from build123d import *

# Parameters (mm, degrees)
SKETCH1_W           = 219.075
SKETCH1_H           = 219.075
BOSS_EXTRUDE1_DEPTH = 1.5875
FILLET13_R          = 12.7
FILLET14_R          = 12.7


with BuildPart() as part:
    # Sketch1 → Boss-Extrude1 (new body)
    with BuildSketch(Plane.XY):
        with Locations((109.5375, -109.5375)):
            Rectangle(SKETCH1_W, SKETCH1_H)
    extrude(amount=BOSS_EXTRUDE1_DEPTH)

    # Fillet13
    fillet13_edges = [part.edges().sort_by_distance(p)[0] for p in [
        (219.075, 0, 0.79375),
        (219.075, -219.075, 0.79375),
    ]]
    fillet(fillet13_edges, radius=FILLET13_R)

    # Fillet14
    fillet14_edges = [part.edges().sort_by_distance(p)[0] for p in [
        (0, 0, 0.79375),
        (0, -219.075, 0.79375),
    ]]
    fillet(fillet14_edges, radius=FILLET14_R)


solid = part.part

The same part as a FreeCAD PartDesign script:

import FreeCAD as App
import Part
import Sketcher
Q = App.Units.Quantity


def edges_at(feature, points):
    """Names of the edges that pass closest to the given points."""
    edges = feature.Shape.Edges
    near = lambda p: min(range(len(edges)), key=lambda i: edges[i].distToShape(Part.Vertex(*p))[0])
    return sorted({f"Edge{near(p) + 1}" for p in points})


def add_polygon(sketch, points):
    """Adds a closed chain of lines whose ends are joined by coincident constraints."""
    first, n = sketch.GeometryCount, len(points)
    for a, b in zip(points, points[1:] + points[:1]):
        sketch.addGeometry(Part.LineSegment(App.Vector(*a, 0), App.Vector(*b, 0)), False)
    for i in range(n):
        sketch.addConstraint(Sketcher.Constraint("Coincident", first + i, 2, first + (i + 1) % n, 1))

doc = App.newDocument("Part")
body = doc.addObject("PartDesign::Body", "Body")

sketch1 = doc.addObject("Sketcher::SketchObject", "Sketch")
body.addObject(sketch1)
sketch1.AttachmentSupport = (doc.XY_Plane, [""])
sketch1.MapMode = "FlatFace"
add_polygon(sketch1, [(0, 0), (0, -219), (219, -219), (219, 0)])
sketch1.addConstraint(Sketcher.Constraint("Vertical", 0))
sketch1.addConstraint(Sketcher.Constraint("Horizontal", 1))
sketch1.addConstraint(Sketcher.Constraint("Vertical", 2))
sketch1.addConstraint(Sketcher.Constraint("Horizontal", 3))
sketch1.addConstraint(Sketcher.Constraint("Coincident", 3, 2, -1, 1))
sketch1.addConstraint(Sketcher.Constraint("Equal", 3, 0))
sketch1.addConstraint(Sketcher.Constraint("DistanceX", 1, 1, 1, 2, Q("8.625 in")))
pad1 = doc.addObject("PartDesign::Pad", "Pad")
body.addObject(pad1)
pad1.Profile = sketch1
pad1.Length = Q("0.0625 in")
doc.recompute()

fillet = doc.addObject("PartDesign::Fillet", "Fillet")
body.addObject(fillet)
fillet.Base = (pad1, edges_at(pad1, [(219.075, 0, 0.794), (219.075, -219.075, 0.794)]))
fillet.Radius = Q("0.5 in")
doc.recompute()

fillet2 = doc.addObject("PartDesign::Fillet", "Fillet001")
body.addObject(fillet2)
fillet2.Base = (fillet, edges_at(fillet, [(0, 0, 0.794), (0, -219.075, 0.794)]))
fillet2.Radius = Q("0.5 in")

doc.recompute()
